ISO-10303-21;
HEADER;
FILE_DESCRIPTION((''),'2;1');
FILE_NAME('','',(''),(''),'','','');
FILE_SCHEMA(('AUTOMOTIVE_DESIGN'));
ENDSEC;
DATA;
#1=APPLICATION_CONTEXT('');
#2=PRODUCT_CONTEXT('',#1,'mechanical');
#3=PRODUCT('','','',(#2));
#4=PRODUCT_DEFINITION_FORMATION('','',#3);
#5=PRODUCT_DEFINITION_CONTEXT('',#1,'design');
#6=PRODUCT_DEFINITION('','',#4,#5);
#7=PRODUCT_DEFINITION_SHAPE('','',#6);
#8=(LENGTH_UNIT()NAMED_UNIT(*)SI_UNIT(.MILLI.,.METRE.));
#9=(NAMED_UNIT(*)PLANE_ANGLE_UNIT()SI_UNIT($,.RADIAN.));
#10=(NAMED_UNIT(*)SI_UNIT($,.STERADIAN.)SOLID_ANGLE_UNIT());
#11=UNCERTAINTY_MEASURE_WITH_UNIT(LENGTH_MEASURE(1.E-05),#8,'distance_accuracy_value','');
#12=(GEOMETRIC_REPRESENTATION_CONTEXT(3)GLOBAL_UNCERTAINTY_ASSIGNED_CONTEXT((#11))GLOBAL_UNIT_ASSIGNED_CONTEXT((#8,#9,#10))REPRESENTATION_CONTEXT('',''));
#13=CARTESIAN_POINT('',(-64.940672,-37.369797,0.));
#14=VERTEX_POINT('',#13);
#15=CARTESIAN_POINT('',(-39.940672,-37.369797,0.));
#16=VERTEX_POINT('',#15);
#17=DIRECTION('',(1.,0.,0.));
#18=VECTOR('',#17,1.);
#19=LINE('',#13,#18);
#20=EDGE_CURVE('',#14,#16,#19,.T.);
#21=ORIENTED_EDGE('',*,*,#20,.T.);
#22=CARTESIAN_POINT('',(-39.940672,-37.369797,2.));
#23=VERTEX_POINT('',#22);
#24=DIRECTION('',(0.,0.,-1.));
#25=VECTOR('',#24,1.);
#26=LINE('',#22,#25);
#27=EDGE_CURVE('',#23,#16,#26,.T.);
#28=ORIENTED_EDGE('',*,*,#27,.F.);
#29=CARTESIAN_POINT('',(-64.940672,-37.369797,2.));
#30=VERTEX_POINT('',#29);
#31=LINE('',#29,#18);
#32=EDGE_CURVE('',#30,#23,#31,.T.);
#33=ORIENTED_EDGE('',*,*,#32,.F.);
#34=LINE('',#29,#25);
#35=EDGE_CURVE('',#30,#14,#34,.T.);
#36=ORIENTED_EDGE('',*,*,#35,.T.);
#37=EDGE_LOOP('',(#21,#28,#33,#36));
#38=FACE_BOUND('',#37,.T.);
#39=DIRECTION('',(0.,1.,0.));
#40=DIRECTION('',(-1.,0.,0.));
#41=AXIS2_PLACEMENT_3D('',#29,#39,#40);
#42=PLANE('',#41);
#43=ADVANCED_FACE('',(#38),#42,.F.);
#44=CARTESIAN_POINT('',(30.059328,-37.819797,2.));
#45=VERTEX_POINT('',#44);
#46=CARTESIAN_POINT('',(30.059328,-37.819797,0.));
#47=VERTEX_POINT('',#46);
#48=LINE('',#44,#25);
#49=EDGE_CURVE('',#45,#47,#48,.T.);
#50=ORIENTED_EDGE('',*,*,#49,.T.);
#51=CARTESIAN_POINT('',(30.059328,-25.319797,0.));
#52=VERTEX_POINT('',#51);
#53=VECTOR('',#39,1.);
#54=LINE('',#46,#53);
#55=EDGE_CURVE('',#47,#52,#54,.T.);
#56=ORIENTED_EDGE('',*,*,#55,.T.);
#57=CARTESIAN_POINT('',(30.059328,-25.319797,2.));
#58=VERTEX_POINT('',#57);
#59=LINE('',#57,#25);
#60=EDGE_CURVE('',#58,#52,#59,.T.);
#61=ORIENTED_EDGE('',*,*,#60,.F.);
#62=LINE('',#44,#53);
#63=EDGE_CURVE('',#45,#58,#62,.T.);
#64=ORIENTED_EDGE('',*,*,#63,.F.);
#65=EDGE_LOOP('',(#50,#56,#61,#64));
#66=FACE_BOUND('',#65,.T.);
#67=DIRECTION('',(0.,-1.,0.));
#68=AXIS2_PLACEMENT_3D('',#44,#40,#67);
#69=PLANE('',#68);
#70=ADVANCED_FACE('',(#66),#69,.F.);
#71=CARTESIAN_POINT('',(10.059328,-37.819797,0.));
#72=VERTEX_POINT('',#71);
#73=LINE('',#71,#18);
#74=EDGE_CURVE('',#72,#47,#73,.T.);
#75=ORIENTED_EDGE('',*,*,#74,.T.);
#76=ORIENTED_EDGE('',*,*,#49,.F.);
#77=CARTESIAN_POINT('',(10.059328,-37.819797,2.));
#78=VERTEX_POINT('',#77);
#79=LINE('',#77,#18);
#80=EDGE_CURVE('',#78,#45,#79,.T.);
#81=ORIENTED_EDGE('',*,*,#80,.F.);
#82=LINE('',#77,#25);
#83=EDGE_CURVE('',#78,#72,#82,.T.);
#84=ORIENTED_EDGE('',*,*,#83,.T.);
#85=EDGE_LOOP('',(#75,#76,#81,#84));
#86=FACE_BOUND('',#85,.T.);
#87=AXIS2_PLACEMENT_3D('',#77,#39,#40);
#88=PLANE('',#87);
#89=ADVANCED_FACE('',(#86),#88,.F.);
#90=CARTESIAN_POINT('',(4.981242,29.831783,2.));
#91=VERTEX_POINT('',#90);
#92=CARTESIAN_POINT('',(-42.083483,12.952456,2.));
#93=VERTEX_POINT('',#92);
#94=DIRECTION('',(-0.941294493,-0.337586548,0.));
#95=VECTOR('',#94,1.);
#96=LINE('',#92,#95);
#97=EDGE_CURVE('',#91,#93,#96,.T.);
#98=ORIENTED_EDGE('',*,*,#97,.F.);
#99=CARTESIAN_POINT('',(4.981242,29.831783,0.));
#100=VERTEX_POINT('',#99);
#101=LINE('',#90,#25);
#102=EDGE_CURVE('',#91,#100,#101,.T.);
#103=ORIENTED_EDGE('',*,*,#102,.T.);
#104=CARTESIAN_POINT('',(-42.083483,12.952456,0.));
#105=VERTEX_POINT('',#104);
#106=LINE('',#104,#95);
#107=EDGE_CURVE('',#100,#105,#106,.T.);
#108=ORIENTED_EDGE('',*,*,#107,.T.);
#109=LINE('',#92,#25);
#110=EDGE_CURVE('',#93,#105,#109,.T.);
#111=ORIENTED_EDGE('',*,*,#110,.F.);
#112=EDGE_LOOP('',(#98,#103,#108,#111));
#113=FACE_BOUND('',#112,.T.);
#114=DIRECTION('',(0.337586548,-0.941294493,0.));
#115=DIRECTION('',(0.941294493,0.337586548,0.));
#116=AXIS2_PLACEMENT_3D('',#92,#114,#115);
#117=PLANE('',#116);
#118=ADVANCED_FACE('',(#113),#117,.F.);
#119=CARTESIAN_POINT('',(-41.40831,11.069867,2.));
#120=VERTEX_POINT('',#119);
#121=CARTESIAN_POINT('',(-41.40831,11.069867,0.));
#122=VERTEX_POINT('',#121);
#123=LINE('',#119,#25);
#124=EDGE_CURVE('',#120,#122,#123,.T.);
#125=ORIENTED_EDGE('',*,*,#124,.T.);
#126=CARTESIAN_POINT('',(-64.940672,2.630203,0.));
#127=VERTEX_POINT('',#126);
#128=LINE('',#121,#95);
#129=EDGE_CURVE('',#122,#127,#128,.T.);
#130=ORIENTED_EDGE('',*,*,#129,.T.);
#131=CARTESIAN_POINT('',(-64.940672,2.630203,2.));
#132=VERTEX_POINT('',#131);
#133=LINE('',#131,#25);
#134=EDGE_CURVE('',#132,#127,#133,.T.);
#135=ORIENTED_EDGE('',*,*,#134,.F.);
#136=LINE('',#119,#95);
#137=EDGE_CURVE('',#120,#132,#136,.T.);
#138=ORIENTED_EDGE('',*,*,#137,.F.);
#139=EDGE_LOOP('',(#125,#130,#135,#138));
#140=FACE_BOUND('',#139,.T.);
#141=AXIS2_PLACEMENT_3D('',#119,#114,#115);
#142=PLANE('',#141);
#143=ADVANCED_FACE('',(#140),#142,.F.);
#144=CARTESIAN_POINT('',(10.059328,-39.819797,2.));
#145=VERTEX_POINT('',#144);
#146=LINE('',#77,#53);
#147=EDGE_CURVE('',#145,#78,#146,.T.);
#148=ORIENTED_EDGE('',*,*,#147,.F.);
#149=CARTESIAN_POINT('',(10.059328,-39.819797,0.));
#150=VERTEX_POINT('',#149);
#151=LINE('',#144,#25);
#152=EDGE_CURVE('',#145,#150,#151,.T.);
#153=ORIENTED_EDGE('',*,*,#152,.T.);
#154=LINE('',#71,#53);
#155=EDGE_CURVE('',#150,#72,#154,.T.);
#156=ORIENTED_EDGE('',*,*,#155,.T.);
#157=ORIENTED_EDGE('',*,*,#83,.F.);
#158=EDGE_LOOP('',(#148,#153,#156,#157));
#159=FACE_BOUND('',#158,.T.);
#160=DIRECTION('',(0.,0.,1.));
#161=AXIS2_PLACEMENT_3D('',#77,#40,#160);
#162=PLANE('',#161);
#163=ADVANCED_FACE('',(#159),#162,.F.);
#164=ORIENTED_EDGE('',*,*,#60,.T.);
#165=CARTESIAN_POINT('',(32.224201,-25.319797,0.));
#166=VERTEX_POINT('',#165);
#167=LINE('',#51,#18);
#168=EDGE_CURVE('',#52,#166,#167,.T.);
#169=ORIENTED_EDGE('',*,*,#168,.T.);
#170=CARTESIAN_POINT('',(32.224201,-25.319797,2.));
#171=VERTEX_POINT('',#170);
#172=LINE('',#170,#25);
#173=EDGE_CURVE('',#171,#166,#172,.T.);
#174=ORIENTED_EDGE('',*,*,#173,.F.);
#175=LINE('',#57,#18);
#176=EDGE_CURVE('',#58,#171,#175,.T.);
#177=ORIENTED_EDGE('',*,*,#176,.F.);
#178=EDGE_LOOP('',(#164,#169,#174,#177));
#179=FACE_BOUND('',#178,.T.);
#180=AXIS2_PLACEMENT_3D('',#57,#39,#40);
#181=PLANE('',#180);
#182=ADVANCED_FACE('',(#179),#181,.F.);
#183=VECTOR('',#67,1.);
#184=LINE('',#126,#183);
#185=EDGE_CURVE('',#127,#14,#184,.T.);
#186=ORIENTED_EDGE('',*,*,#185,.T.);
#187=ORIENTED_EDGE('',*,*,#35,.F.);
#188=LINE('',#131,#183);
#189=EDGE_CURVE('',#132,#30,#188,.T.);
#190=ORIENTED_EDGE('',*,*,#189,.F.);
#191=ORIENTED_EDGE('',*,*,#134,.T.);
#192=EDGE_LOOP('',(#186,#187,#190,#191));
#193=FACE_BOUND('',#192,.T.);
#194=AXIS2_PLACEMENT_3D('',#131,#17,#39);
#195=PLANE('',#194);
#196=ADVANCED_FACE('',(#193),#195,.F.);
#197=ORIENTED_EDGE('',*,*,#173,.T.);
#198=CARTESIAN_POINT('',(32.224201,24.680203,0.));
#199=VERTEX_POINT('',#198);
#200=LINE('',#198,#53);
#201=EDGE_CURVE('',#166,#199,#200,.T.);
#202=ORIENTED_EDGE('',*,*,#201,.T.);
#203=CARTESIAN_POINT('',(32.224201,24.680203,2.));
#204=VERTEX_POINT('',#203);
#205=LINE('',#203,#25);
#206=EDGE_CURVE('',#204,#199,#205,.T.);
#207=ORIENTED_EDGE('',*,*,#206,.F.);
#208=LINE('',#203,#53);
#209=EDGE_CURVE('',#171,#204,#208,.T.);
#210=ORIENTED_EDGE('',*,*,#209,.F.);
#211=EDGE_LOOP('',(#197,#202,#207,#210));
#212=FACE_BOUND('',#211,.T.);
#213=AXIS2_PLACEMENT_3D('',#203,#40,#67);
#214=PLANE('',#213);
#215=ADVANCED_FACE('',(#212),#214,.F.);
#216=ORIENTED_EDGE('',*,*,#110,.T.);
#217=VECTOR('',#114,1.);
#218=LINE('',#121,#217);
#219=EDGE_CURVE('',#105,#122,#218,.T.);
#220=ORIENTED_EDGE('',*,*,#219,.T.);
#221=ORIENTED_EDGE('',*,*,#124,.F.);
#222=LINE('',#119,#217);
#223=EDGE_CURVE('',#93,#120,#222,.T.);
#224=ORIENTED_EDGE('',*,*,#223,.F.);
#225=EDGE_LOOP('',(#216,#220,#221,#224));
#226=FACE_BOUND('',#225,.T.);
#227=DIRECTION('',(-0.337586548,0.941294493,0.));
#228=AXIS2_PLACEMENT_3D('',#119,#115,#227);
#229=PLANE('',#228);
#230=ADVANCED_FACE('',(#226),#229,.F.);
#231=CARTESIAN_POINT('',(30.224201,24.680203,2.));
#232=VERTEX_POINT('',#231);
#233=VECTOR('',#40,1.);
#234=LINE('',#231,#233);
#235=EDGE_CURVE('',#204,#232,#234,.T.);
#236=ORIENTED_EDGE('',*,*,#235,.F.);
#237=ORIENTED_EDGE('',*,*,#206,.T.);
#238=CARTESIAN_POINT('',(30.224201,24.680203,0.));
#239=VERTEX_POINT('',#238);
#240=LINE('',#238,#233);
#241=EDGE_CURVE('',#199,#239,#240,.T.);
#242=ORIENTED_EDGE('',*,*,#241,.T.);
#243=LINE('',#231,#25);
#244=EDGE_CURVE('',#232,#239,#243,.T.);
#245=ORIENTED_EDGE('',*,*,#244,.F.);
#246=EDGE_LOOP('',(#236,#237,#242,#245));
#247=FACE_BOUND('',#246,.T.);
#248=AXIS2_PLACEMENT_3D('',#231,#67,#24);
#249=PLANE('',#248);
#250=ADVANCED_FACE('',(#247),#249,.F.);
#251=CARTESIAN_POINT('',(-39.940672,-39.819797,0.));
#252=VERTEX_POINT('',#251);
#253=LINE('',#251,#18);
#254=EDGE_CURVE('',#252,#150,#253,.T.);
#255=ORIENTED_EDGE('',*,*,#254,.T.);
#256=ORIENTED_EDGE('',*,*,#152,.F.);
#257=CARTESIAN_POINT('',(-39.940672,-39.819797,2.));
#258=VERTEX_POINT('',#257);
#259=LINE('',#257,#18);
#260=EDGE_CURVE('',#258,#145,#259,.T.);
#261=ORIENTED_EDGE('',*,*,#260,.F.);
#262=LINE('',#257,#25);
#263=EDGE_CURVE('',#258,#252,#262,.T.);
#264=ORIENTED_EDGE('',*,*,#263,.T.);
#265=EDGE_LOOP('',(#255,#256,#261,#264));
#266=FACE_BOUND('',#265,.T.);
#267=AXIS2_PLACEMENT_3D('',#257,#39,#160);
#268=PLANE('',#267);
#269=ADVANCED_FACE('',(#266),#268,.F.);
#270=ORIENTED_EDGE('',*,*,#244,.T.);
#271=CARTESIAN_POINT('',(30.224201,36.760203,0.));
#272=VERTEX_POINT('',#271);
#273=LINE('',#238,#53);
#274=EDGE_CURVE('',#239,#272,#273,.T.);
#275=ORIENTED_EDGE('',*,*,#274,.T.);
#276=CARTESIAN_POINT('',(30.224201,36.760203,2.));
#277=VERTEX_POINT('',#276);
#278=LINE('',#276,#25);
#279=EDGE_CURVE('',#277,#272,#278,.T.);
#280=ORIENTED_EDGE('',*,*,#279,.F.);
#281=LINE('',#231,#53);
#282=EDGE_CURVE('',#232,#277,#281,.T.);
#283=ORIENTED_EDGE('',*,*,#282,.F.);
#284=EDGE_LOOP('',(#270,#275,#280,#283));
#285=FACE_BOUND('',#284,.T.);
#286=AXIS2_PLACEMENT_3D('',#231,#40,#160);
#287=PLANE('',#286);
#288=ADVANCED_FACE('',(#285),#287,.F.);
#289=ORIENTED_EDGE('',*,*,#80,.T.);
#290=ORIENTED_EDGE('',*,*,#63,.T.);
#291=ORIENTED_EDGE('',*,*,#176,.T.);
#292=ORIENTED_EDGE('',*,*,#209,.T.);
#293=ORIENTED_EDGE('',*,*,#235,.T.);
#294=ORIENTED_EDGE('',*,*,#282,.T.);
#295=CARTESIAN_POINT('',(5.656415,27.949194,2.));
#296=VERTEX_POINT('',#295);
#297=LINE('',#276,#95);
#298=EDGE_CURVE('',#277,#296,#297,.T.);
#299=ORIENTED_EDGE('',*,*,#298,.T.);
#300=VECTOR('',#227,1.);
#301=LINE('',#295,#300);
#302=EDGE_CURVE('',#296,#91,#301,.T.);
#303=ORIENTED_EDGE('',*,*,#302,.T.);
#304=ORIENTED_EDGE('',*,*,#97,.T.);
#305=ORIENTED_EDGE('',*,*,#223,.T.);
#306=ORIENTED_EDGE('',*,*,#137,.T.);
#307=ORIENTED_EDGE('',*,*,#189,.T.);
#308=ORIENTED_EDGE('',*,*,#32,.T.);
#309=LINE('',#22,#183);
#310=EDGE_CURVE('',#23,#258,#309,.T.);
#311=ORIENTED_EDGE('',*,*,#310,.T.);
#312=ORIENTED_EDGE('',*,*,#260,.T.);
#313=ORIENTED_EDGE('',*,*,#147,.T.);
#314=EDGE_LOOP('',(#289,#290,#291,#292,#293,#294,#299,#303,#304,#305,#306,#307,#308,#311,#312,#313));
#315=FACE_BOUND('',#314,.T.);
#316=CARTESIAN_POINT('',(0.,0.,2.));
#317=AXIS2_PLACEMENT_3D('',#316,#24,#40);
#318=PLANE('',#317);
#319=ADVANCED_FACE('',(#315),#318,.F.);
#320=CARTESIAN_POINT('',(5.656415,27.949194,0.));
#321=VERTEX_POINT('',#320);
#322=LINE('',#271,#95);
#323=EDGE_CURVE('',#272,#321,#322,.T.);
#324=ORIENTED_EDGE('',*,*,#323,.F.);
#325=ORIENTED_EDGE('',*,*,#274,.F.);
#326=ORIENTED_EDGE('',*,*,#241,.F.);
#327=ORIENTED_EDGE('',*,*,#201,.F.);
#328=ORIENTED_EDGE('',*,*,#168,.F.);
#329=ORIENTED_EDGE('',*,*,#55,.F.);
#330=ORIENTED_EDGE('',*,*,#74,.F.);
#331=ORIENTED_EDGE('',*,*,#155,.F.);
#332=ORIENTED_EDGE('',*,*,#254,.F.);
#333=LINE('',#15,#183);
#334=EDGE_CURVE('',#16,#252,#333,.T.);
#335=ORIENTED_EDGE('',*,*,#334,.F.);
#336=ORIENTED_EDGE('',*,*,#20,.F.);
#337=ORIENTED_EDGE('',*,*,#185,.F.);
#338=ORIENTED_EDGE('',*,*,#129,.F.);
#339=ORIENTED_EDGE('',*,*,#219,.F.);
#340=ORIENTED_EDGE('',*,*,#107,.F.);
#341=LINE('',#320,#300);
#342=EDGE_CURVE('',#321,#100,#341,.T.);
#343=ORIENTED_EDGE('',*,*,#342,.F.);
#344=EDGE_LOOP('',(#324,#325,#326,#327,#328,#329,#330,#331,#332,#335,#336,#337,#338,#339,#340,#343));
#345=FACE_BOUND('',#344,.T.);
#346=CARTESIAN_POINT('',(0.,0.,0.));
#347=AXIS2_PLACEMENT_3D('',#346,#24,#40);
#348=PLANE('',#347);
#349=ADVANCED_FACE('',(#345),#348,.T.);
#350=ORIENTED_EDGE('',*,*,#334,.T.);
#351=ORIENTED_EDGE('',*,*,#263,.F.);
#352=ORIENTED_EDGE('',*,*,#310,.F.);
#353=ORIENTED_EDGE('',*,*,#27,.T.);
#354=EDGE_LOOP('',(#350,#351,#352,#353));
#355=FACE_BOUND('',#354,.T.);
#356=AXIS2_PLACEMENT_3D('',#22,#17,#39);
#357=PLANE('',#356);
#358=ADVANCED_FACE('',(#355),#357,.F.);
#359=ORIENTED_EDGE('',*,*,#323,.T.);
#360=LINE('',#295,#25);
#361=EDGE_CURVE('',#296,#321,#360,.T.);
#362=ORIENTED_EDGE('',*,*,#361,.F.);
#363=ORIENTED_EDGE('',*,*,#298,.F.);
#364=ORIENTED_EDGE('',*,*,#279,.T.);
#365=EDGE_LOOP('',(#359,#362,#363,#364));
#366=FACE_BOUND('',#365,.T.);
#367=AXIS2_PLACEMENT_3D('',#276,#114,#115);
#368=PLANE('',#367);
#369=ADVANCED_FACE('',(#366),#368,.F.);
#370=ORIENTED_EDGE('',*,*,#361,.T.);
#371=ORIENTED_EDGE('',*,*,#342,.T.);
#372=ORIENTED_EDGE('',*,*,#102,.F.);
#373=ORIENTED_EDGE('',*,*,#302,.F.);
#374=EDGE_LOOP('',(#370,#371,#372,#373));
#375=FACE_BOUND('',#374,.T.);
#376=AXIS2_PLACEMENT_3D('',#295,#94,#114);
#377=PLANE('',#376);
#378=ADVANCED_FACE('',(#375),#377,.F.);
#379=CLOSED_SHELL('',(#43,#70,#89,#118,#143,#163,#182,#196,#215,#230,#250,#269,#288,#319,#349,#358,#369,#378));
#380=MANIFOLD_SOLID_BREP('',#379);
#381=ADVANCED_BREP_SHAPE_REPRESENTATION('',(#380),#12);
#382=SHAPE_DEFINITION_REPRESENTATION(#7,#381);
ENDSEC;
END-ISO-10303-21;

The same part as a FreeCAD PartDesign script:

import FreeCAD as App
import Part
import Sketcher

doc = App.newDocument("Part")
body = doc.addObject("PartDesign::Body", "Body")

# Sketch on XY plane
sketch1 = body.newObject("Sketcher::SketchObject", "Sketch")
sketch1.AttachmentSupport = (doc.getObject("XY_Plane"), [""])
sketch1.MapMode = "FlatFace"
sketch1.addGeometry([
    Part.LineSegment(App.Vector(30.2, 24.7, 0), App.Vector(30.2, 36.8, 0)),  # 0
    Part.LineSegment(App.Vector(30.2, 36.8, 0), App.Vector(5.7, 27.9, 0)),  # 1
    Part.LineSegment(App.Vector(5.7, 27.9, 0), App.Vector(5, 29.8, 0)),  # 2
    Part.LineSegment(App.Vector(5, 29.8, 0), App.Vector(-42.1, 13, 0)),  # 3
    Part.LineSegment(App.Vector(-42.1, 13, 0), App.Vector(-41.4, 11.1, 0)),  # 4
    Part.LineSegment(App.Vector(-41.4, 11.1, 0), App.Vector(-64.9, 2.6, 0)),  # 5
    Part.LineSegment(App.Vector(-64.9, 2.6, 0), App.Vector(-64.9, -37.4, 0)),  # 6
    Part.LineSegment(App.Vector(-64.9, -37.4, 0), App.Vector(-39.9, -37.4, 0)),  # 7
    Part.LineSegment(App.Vector(-39.9, -37.4, 0), App.Vector(-39.9, -39.8, 0)),  # 8
    Part.LineSegment(App.Vector(-39.9, -39.8, 0), App.Vector(10.1, -39.8, 0)),  # 9
    Part.LineSegment(App.Vector(10.1, -39.8, 0), App.Vector(10.1, -37.8, 0)),  # 10
    Part.LineSegment(App.Vector(10.1, -37.8, 0), App.Vector(30.1, -37.8, 0)),  # 11
    Part.LineSegment(App.Vector(30.1, -37.8, 0), App.Vector(30.1, -25.3, 0)),  # 12
    Part.LineSegment(App.Vector(30.1, -25.3, 0), App.Vector(32.2, -25.3, 0)),  # 13
    Part.LineSegment(App.Vector(32.2, -25.3, 0), App.Vector(32.2, 24.7, 0)),  # 14
    Part.LineSegment(App.Vector(32.2, 24.7, 0), App.Vector(30.2, 24.7, 0)),  # 15
], False)
sketch1.addConstraint([
    Sketcher.Constraint("Coincident", 0, 2, 1, 1),
    Sketcher.Constraint("Coincident", 1, 2, 2, 1),
    Sketcher.Constraint("Coincident", 2, 2, 3, 1),
    Sketcher.Constraint("Coincident", 3, 2, 4, 1),
    Sketcher.Constraint("Coincident", 4, 2, 5, 1),
    Sketcher.Constraint("Coincident", 5, 2, 6, 1),
    Sketcher.Constraint("Coincident", 6, 2, 7, 1),
    Sketcher.Constraint("Coincident", 7, 2, 8, 1),
    Sketcher.Constraint("Coincident", 8, 2, 9, 1),
    Sketcher.Constraint("Coincident", 9, 2, 10, 1),
    Sketcher.Constraint("Coincident", 10, 2, 11, 1),
    Sketcher.Constraint("Coincident", 11, 2, 12, 1),
    Sketcher.Constraint("Coincident", 12, 2, 13, 1),
    Sketcher.Constraint("Coincident", 13, 2, 14, 1),
    Sketcher.Constraint("Coincident", 14, 2, 15, 1),
    Sketcher.Constraint("Coincident", 15, 2, 0, 1),
    Sketcher.Constraint("Vertical", 0),
    Sketcher.Constraint("Vertical", 6),
    Sketcher.Constraint("Horizontal", 7),
    Sketcher.Constraint("Vertical", 8),
    Sketcher.Constraint("Horizontal", 9),
    Sketcher.Constraint("Vertical", 10),
    Sketcher.Constraint("Horizontal", 11),
    Sketcher.Constraint("Vertical", 12),
    Sketcher.Constraint("Horizontal", 13),
    Sketcher.Constraint("Vertical", 14),
    Sketcher.Constraint("Horizontal", 15),
    Sketcher.Constraint("Perpendicular", 1, 2),
    Sketcher.Constraint("Perpendicular", 2, 3),
    Sketcher.Constraint("Perpendicular", 3, 4),
    Sketcher.Constraint("Perpendicular", 4, 5),
    Sketcher.Constraint("Equal", 15, 10),
    Sketcher.Constraint("Equal", 9, 14),
    Sketcher.Constraint("Equal", 2, 4),
    Sketcher.Constraint("DistanceX", 7, 1, 7, 2, 25.0),
    Sketcher.Constraint("DistanceX", 9, 1, 9, 2, 50.0),
    Sketcher.Constraint("DistanceX", 11, 1, 11, 2, 20.0),
    Sketcher.Constraint("DistanceX", 15, 2, 15, 1, 2.0),
    Sketcher.Constraint("DistanceY", 6, 2, 6, 1, 40.0),
    Sketcher.Constraint("Distance", 2, 2.0),
    Sketcher.Constraint("Distance", 3, 50.0),
    Sketcher.Constraint("Distance", 5, 25.0),
    Sketcher.Constraint("DistanceY", 12, 1, 12, 2, 12.5),
    Sketcher.Constraint("Distance", 1, 26.1),
    Sketcher.Constraint("DistanceY", 0, 1, 0, 2, 12.08),
    Sketcher.Constraint("DistanceY", 8, 2, 8, 1, 2.45),
    Sketcher.Constraint("DistanceX", -1, 1, 0, 2, 30.224201),
    Sketcher.Constraint("DistanceY", -1, 1, 0, 2, 36.760203),
])
pad1 = body.newObject("PartDesign::Pad", "Pad")
pad1.Profile = sketch1
pad1.Length = 2

doc.recompute()
